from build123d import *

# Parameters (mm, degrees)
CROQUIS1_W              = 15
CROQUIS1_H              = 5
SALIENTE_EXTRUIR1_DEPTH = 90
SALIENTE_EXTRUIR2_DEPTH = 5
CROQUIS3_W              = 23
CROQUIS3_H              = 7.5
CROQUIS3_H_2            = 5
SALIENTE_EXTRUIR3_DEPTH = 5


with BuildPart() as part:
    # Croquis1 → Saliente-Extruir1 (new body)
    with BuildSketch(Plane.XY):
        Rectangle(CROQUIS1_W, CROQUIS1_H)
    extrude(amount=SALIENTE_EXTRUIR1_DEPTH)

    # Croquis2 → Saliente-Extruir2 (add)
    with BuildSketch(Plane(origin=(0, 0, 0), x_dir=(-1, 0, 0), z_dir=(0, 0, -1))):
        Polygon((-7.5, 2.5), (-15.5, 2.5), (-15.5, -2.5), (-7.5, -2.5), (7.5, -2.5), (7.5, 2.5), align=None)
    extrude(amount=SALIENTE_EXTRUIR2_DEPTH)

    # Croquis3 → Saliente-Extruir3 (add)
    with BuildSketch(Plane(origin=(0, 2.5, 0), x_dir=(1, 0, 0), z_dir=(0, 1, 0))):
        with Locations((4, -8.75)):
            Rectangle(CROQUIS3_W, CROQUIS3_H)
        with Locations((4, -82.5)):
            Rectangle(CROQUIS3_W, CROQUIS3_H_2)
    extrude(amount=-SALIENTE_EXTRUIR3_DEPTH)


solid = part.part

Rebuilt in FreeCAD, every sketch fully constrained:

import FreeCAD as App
import Part
import Sketcher
from FreeCAD import Vector
Q = App.Units.Quantity


def add_polygon(sketch, points):
    """Adds a closed chain of lines whose ends are joined by coincident constraints."""
    first, n = sketch.GeometryCount, len(points)
    for a, b in zip(points, points[1:] + points[:1]):
        sketch.addGeometry(Part.LineSegment(App.Vector(*a, 0), App.Vector(*b, 0)), False)
    for i in range(n):
        sketch.addConstraint(Sketcher.Constraint("Coincident", first + i, 2, first + (i + 1) % n, 1))

doc = App.newDocument("Part")
params = doc.addObject("Spreadsheet::Sheet", "Params")
for row, (alias, value) in enumerate([
    ("sketch1_width", "15 mm"),
    ("sketch1_height", "5 mm"),
    ("pad1_length", "90 mm"),
    ("sketch2_width", "23 mm"),
    ("sketch2_height", "5 mm"),
    ("pad2_length", "5 mm"),
    ("sketch3_width", "23 mm"),
    ("sketch3_height", "5 mm"),
    ("sketch3_height2", "7.5 mm"),
    ("pad3_length", "5 mm"),
], start=1):
    params.set(f"A{row}", alias)
    params.set(f"B{row}", "=" + value)
    params.setAlias(f"B{row}", alias)

body = doc.addObject("PartDesign::Body", "Body")

sketch1 = doc.addObject("Sketcher::SketchObject", "Sketch")
body.addObject(sketch1)
sketch1.AttachmentSupport = (doc.XY_Plane, [""])
sketch1.MapMode = "FlatFace"
add_polygon(sketch1, [(-8, 2), (-8, -2), (8, -2), (8, 2)])
sketch1.addConstraint(Sketcher.Constraint("Vertical", 0))
sketch1.addConstraint(Sketcher.Constraint("Horizontal", 1))
sketch1.addConstraint(Sketcher.Constraint("Vertical", 2))
sketch1.addConstraint(Sketcher.Constraint("Horizontal", 3))
sketch1.addConstraint(Sketcher.Constraint("Symmetric", 0, 2, 2, 2, -1, 1))
sketch1.addConstraint(Sketcher.Constraint("DistanceX", 1, 1, 1, 2, Q("15 mm")))
sketch1.addConstraint(Sketcher.Constraint("DistanceY", 0, 2, 0, 1, Q("5 mm")))
sketch1.setExpression("Constraints[9]", "Params.sketch1_width")
sketch1.setExpression("Constraints[10]", "Params.sketch1_height")
pad1 = doc.addObject("PartDesign::Pad", "Pad")
body.addObject(pad1)
pad1.Profile = sketch1
pad1.setExpression("Length", "Params.pad1_length")

sketch2 = doc.addObject("Sketcher::SketchObject", "Sketch001")
body.addObject(sketch2)
sketch2.AttachmentSupport = (doc.XY_Plane, [""])
sketch2.MapMode = "FlatFace"
add_polygon(sketch2, [(16, 2), (16, -2), (-8, -2), (-8, 2)])
sketch2.addConstraint(Sketcher.Constraint("Vertical", 0))
sketch2.addConstraint(Sketcher.Constraint("Horizontal", 1))
sketch2.addConstraint(Sketcher.Constraint("Vertical", 2))
sketch2.addConstraint(Sketcher.Constraint("Horizontal", 3))
sketch2.addConstraint(Sketcher.Constraint("DistanceX", 1, 2, 1, 1, Q("23 mm")))
sketch2.addConstraint(Sketcher.Constraint("DistanceY", 0, 2, 0, 1, Q("5 mm")))
sketch2.addConstraint(Sketcher.Constraint("DistanceX", -1, 1, 0, 2, Q("15.5 mm")))
sketch2.addConstraint(Sketcher.Constraint("DistanceY", 0, 2, -1, 1, Q("2.5 mm")))
sketch2.setExpression("Constraints[8]", "Params.sketch2_width")
sketch2.setExpression("Constraints[9]", "Params.sketch2_height")
pad2 = doc.addObject("PartDesign::Pad", "Pad001")
body.addObject(pad2)
pad2.Profile = sketch2
pad2.setExpression("Length", "Params.pad2_length")
pad2.Reversed = True

sketch3 = doc.addObject("Sketcher::SketchObject", "Sketch002")
body.addObject(sketch3)
sketch3.AttachmentSupport = (doc.XZ_Plane, [""])
sketch3.MapMode = "FlatFace"
sketch3.AttachmentOffset = App.Placement(Vector(0, 0, -2.5), App.Rotation())
add_polygon(sketch3, [(-8, 5), (-8, 12), (16, 12), (16, 5)])
add_polygon(sketch3, [(-8, 80), (-8, 85), (16, 85), (16, 80)])
sketch3.addConstraint(Sketcher.Constraint("Vertical", 0))
sketch3.addConstraint(Sketcher.Constraint("Horizontal", 1))
sketch3.addConstraint(Sketcher.Constraint("Vertical", 2))
sketch3.addConstraint(Sketcher.Constraint("Horizontal", 3))
sketch3.addConstraint(Sketcher.Constraint("Vertical", 4))
sketch3.addConstraint(Sketcher.Constraint("Horizontal", 5))
sketch3.addConstraint(Sketcher.Constraint("Vertical", 6))
sketch3.addConstraint(Sketcher.Constraint("Horizontal", 7))
sketch3.addConstraint(Sketcher.Constraint("Vertical", 3, 2, 4, 2))
sketch3.addConstraint(Sketcher.Constraint("Vertical", 2, 2, 5, 2))
sketch3.addConstraint(Sketcher.Constraint("DistanceX", 1, 1, 1, 2, Q("23 mm")))
sketch3.addConstraint(Sketcher.Constraint("DistanceY", 4, 1, 4, 2, Q("5 mm")))
sketch3.addConstraint(Sketcher.Constraint("DistanceY", 0, 1, 0, 2, Q("7.5 mm")))
sketch3.addConstraint(Sketcher.Constraint("DistanceY", -1, 1, 2, 2, Q("5 mm")))
sketch3.addConstraint(Sketcher.Constraint("DistanceY", -1, 1, 4, 2, Q("85 mm")))
sketch3.addConstraint(Sketcher.Constraint("DistanceX", 0, 2, -1, 1, Q("7.5 mm")))
sketch3.setExpression("Constraints[18]", "Params.sketch3_width")
sketch3.setExpression("Constraints[19]", "Params.sketch3_height")
sketch3.setExpression("Constraints[20]", "Params.sketch3_height2")
pad3 = doc.addObject("PartDesign::Pad", "Pad002")
body.addObject(pad3)
pad3.Profile = sketch3
pad3.setExpression("Length", "Params.pad3_length")

doc.recompute()
